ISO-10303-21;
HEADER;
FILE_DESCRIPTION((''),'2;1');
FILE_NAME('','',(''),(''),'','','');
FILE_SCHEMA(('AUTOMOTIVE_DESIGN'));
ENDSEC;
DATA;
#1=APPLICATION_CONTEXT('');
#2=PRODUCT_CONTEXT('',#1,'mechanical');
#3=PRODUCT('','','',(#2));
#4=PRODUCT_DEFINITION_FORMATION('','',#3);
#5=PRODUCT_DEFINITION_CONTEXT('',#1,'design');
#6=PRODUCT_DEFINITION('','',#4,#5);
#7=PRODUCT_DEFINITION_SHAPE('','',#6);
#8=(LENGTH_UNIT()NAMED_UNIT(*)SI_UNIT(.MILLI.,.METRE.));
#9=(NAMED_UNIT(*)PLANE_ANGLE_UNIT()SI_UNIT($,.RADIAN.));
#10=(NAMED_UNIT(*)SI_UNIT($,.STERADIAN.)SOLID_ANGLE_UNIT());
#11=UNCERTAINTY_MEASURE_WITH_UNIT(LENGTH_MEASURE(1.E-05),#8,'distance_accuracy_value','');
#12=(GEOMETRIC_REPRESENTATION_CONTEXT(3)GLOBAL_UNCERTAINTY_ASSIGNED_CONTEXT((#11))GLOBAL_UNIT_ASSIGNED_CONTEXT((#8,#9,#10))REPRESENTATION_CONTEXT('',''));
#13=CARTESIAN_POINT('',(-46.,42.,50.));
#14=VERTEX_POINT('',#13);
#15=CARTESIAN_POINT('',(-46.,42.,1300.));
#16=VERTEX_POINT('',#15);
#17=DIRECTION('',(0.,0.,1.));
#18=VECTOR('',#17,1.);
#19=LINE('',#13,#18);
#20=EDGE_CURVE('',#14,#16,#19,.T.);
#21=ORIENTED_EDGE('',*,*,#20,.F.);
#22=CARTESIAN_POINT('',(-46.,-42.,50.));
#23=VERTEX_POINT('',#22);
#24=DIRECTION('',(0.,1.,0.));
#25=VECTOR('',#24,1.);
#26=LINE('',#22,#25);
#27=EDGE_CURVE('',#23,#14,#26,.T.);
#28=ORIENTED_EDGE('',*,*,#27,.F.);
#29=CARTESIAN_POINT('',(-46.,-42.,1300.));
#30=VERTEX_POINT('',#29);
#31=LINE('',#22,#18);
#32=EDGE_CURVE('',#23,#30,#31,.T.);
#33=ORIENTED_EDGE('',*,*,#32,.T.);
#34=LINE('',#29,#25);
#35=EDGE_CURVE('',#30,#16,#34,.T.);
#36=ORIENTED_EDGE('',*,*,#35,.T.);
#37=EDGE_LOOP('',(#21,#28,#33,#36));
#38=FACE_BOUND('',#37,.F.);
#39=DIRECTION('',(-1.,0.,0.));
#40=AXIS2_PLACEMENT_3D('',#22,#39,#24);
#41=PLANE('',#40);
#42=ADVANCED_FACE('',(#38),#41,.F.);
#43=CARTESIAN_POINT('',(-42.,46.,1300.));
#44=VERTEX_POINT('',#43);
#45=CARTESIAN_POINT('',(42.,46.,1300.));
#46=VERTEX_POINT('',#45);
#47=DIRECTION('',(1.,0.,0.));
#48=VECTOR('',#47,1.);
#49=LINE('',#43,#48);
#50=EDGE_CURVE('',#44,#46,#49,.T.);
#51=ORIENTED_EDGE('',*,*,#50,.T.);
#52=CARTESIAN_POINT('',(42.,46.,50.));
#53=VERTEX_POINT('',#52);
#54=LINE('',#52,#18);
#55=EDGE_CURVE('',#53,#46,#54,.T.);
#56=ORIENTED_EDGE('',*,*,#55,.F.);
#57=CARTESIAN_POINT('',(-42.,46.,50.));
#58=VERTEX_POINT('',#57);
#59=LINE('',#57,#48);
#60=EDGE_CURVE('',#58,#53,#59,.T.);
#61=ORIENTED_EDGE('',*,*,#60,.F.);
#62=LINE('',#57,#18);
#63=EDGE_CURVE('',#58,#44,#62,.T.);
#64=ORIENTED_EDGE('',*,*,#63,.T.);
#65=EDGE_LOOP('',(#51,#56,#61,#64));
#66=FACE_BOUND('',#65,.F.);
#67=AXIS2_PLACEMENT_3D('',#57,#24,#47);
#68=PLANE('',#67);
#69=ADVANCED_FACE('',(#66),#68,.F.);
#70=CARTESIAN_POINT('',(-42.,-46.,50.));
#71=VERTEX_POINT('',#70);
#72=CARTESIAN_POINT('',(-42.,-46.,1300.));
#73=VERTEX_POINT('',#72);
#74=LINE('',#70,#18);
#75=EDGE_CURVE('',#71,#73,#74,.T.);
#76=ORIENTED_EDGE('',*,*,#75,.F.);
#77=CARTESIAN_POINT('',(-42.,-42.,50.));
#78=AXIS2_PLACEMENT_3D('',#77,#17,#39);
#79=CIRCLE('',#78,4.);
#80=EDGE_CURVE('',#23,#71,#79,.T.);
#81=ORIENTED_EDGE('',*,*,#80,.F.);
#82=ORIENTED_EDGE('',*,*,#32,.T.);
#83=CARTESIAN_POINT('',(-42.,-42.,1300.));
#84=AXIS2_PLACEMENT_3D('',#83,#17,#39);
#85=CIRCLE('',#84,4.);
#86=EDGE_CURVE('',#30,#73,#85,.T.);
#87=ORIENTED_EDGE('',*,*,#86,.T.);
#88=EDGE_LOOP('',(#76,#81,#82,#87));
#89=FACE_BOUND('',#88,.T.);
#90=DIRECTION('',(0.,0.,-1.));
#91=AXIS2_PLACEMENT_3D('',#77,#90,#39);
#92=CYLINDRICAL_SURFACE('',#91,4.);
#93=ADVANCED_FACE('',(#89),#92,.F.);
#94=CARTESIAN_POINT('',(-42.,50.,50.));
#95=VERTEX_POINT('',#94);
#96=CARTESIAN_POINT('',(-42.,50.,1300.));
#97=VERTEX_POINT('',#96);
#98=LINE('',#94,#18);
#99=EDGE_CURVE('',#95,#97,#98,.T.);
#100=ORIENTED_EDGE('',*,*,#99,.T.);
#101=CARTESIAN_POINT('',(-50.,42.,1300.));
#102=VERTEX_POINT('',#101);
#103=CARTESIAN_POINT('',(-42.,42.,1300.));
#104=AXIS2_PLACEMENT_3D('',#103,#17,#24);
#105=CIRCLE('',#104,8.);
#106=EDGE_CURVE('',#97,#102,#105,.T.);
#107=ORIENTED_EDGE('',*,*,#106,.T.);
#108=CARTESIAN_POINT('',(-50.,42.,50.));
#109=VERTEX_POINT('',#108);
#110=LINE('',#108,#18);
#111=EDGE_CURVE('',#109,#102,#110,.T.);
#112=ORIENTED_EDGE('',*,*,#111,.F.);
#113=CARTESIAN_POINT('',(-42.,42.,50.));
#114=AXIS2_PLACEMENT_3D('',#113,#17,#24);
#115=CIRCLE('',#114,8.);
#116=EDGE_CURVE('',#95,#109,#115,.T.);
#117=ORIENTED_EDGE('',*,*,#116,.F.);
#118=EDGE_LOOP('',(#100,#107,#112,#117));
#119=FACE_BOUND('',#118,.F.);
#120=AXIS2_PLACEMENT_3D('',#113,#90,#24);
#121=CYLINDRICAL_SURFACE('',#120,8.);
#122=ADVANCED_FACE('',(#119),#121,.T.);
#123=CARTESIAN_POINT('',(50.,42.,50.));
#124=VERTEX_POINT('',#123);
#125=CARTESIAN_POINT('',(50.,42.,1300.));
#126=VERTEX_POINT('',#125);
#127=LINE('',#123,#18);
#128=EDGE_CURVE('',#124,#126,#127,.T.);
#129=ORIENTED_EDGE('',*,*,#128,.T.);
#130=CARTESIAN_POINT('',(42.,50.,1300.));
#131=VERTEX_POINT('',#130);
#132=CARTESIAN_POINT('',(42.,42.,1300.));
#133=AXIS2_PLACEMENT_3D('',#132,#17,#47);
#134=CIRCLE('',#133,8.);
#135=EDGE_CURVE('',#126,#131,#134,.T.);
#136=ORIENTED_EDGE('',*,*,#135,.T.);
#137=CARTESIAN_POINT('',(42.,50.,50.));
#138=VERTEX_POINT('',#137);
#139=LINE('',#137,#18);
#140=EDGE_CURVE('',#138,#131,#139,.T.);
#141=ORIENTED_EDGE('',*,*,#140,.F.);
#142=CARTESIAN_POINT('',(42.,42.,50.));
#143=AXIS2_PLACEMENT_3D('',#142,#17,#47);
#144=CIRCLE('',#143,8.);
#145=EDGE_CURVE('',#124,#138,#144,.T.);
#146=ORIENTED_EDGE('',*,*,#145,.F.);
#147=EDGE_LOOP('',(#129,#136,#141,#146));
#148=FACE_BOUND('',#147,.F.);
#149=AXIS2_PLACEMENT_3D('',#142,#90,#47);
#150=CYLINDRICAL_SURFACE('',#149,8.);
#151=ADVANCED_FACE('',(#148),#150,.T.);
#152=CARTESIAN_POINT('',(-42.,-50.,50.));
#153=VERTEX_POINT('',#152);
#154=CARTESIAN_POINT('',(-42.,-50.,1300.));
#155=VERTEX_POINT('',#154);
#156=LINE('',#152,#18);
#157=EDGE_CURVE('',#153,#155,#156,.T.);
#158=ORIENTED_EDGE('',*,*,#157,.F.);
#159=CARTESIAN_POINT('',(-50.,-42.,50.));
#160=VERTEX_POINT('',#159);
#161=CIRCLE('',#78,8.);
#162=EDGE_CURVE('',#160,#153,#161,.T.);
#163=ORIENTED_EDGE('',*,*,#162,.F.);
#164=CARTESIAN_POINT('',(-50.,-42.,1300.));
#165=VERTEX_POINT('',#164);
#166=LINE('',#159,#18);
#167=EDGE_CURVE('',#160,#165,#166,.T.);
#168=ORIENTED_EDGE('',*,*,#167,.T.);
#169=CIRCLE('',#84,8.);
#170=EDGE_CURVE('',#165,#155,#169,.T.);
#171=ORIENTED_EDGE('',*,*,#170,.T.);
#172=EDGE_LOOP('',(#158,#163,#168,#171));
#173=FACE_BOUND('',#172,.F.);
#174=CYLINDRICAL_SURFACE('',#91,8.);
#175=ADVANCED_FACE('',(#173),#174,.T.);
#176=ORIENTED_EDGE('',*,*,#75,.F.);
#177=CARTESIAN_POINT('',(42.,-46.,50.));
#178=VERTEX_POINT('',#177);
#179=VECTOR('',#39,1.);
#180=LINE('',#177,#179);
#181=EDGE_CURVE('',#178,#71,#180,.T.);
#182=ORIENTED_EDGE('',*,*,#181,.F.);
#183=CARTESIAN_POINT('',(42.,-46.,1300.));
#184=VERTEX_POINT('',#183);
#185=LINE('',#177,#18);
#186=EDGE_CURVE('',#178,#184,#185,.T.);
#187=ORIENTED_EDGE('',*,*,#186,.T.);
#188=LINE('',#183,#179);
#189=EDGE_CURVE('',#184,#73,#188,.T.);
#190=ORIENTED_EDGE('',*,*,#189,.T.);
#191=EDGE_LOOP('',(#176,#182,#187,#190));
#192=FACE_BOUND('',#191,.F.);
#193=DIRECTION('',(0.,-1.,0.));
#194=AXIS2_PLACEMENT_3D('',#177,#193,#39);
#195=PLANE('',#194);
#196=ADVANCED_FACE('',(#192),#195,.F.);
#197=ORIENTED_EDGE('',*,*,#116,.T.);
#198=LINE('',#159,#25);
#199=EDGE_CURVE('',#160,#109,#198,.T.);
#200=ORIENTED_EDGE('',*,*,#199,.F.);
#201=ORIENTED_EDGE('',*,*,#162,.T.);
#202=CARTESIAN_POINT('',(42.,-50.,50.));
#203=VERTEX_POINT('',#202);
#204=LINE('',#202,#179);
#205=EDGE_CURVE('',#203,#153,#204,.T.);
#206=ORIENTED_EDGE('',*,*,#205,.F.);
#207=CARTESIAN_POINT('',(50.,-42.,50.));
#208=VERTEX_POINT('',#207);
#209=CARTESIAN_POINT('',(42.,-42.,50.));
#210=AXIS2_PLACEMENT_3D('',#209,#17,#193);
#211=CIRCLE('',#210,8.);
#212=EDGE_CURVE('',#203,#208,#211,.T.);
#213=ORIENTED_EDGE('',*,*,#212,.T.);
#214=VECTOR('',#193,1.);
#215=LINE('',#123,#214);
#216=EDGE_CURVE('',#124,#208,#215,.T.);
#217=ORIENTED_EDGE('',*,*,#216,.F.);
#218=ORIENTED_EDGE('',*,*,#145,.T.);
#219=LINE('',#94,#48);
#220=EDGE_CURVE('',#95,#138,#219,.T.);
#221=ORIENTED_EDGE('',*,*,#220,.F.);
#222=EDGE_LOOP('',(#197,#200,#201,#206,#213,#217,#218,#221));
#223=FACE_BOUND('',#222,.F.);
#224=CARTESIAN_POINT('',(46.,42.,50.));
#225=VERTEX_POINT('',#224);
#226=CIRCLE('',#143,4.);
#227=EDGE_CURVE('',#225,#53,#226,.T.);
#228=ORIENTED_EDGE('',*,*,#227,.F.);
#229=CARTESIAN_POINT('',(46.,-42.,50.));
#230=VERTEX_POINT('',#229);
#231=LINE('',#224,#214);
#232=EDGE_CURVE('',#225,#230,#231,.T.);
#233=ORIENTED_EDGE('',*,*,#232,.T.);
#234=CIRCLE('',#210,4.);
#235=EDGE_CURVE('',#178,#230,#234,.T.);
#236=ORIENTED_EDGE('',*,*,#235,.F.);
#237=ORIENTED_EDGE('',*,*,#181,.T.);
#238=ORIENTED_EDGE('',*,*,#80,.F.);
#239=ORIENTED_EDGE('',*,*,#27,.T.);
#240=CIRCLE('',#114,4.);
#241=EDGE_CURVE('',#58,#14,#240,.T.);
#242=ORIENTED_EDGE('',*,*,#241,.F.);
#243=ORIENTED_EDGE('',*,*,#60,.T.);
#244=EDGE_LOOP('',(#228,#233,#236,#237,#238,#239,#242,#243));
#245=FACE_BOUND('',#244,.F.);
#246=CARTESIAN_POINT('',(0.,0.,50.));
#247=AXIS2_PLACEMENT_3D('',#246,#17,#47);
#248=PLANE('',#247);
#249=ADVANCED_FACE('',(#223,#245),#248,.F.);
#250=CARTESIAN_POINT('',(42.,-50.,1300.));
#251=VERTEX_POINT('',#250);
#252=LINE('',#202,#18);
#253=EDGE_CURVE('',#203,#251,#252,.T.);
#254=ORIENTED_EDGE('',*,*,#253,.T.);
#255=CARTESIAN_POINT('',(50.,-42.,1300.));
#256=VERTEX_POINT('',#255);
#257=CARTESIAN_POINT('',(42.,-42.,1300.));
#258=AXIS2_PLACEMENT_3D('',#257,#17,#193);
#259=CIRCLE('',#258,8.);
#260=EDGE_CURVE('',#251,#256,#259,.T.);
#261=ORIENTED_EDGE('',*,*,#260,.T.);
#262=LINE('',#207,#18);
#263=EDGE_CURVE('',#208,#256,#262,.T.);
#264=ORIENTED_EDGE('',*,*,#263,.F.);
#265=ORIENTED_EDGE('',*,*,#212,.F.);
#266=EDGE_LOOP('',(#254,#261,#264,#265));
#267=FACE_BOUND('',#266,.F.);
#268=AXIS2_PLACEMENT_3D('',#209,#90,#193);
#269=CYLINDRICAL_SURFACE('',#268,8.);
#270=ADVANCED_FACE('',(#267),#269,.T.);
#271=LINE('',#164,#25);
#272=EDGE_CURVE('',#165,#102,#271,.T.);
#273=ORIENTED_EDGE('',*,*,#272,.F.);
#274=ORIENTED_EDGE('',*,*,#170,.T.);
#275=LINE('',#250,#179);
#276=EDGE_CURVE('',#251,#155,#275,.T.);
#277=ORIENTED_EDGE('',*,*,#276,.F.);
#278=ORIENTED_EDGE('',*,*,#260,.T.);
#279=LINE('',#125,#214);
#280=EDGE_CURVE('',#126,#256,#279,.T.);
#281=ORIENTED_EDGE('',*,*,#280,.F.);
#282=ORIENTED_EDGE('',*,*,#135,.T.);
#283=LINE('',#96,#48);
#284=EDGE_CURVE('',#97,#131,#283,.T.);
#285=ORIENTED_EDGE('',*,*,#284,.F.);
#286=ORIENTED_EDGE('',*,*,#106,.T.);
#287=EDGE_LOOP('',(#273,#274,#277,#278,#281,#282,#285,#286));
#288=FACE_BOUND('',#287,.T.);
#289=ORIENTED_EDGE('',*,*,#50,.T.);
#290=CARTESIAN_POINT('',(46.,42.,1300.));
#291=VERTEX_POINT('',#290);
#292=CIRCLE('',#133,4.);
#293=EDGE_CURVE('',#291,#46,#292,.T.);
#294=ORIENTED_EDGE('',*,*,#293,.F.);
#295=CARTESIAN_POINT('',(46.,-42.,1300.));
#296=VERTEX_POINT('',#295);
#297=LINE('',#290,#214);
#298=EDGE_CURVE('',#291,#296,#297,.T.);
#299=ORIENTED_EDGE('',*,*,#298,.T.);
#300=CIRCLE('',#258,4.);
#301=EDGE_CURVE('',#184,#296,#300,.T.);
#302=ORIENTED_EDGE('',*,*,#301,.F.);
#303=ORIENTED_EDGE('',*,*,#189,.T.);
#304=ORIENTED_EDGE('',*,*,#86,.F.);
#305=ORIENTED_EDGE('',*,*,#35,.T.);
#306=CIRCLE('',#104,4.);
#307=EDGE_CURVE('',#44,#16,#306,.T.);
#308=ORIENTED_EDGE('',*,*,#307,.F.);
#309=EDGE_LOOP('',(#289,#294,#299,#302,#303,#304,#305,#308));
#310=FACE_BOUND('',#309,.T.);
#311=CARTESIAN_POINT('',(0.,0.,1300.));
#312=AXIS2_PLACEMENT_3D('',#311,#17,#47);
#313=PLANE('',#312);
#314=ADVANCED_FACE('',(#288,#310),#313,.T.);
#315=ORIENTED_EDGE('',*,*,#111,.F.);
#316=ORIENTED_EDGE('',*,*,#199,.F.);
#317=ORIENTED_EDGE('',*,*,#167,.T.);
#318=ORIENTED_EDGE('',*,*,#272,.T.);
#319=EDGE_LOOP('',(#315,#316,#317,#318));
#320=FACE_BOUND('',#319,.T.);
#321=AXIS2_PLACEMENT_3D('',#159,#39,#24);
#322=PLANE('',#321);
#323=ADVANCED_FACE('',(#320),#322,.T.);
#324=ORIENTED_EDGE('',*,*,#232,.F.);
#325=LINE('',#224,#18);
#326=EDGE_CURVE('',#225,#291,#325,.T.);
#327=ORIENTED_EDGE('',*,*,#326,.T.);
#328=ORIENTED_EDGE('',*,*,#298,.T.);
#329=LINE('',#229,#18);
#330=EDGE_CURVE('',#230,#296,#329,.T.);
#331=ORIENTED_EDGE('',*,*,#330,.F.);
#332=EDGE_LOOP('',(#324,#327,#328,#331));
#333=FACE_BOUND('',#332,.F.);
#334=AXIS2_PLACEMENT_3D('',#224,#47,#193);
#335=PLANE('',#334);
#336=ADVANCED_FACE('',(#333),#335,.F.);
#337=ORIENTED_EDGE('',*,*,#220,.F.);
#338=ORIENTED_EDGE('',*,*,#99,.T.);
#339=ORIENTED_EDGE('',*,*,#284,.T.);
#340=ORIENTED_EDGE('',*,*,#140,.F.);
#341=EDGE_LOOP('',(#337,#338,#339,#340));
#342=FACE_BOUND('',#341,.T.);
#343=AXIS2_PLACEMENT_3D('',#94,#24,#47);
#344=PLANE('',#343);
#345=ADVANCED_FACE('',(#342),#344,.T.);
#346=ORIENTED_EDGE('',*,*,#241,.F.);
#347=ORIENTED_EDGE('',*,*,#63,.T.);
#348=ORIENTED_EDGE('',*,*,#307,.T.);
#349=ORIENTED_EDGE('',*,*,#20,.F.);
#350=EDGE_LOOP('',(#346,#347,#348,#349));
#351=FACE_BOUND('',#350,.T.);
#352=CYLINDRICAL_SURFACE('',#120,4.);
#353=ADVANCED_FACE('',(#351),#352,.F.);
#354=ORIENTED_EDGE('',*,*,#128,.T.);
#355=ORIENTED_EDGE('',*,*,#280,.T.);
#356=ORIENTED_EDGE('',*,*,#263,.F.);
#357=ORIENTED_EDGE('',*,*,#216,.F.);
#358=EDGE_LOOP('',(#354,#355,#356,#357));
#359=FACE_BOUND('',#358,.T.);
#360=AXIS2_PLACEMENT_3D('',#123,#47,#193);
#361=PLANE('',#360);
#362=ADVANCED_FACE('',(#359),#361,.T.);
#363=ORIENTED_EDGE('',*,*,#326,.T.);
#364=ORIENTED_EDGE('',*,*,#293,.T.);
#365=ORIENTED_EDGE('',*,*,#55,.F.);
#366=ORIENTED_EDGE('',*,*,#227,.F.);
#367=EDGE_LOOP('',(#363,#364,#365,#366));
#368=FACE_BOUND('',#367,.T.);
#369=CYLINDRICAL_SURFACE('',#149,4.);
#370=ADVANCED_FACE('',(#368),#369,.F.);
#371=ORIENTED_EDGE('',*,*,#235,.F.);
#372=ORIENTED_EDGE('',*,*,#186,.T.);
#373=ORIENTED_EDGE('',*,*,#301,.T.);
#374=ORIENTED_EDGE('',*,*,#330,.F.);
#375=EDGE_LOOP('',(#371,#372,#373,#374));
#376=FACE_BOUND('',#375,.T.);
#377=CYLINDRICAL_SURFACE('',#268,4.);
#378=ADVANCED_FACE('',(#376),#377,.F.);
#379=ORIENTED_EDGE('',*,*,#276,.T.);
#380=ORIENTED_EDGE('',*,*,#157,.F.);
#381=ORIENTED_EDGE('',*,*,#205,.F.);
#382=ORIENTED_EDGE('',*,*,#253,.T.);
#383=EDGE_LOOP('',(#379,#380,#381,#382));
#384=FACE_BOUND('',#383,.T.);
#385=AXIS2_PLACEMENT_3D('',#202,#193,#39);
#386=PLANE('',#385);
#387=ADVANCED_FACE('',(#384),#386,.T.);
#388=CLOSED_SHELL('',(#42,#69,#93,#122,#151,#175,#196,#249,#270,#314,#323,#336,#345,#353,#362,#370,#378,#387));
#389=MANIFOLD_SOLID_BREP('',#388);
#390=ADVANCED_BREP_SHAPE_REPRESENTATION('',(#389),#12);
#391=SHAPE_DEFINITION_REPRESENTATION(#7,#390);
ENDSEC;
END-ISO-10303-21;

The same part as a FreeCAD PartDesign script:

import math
import FreeCAD as App
import Part
import Sketcher
from FreeCAD import Vector
Q = App.Units.Quantity

doc = App.newDocument("Part")
body = doc.addObject("PartDesign::Body", "Body")

# Sketch on XY plane
sketch1 = body.newObject("Sketcher::SketchObject", "Sketch")
sketch1.AttachmentSupport = (doc.getObject("XY_Plane"), [""])
sketch1.MapMode = "FlatFace"
sketch1.AttachmentOffset = App.Placement(Vector(0, 0, 50), App.Rotation())
sketch1.addGeometry(Part.LineSegment(Vector(-50, 42, 0), Vector(-50, -42, 0)), False)
sketch1.addGeometry(Part.ArcOfCircle(Part.Circle(Vector(-42, -42, 0), Vector(0, 0, 1), 8), math.radians(180), math.radians(270)), False)
sketch1.addGeometry(Part.LineSegment(Vector(-42, -50, 0), Vector(42, -50, 0)), False)
sketch1.addGeometry(Part.ArcOfCircle(Part.Circle(Vector(42, -42, 0), Vector(0, 0, 1), 8), math.radians(-90), math.radians(0)), False)
sketch1.addGeometry(Part.LineSegment(Vector(50, -42, 0), Vector(50, 42, 0)), False)
sketch1.addGeometry(Part.ArcOfCircle(Part.Circle(Vector(42, 42, 0), Vector(0, 0, 1), 8), math.radians(0), math.radians(90)), False)
sketch1.addGeometry(Part.LineSegment(Vector(42, 50, 0), Vector(-42, 50, 0)), False)
sketch1.addGeometry(Part.ArcOfCircle(Part.Circle(Vector(-42, 42, 0), Vector(0, 0, 1), 8), math.radians(90), math.radians(180)), False)
sketch1.addGeometry(Part.ArcOfCircle(Part.Circle(Vector(-42, 42, 0), Vector(0, 0, 1), 4), math.radians(90), math.radians(180)), False)
sketch1.addGeometry(Part.LineSegment(Vector(-42, 46, 0), Vector(42, 46, 0)), False)
sketch1.addGeometry(Part.ArcOfCircle(Part.Circle(Vector(42, 42, 0), Vector(0, 0, 1), 4), math.radians(0), math.radians(90)), False)
sketch1.addGeometry(Part.LineSegment(Vector(46, 42, 0), Vector(46, -42, 0)), False)
sketch1.addGeometry(Part.ArcOfCircle(Part.Circle(Vector(42, -42, 0), Vector(0, 0, 1), 4), math.radians(-90), math.radians(0)), False)
sketch1.addGeometry(Part.LineSegment(Vector(42, -46, 0), Vector(-42, -46, 0)), False)
sketch1.addGeometry(Part.ArcOfCircle(Part.Circle(Vector(-42, -42, 0), Vector(0, 0, 1), 4), math.radians(180), math.radians(270)), False)
sketch1.addGeometry(Part.LineSegment(Vector(-46, -42, 0), Vector(-46, 42, 0)), False)
sketch1.addConstraint(Sketcher.Constraint("Tangent", 0, 2, 1, 1))
sketch1.addConstraint(Sketcher.Constraint("Tangent", 1, 2, 2, 1))
sketch1.addConstraint(Sketcher.Constraint("Tangent", 2, 2, 3, 1))
sketch1.addConstraint(Sketcher.Constraint("Tangent", 3, 2, 4, 1))
sketch1.addConstraint(Sketcher.Constraint("Tangent", 4, 2, 5, 1))
sketch1.addConstraint(Sketcher.Constraint("Tangent", 5, 2, 6, 1))
sketch1.addConstraint(Sketcher.Constraint("Tangent", 6, 2, 7, 1))
sketch1.addConstraint(Sketcher.Constraint("Tangent", 7, 2, 0, 1))
sketch1.addConstraint(Sketcher.Constraint("Tangent", 8, 1, 9, 1))
sketch1.addConstraint(Sketcher.Constraint("Tangent", 9, 2, 10, 2))
sketch1.addConstraint(Sketcher.Constraint("Tangent", 10, 1, 11, 1))
sketch1.addConstraint(Sketcher.Constraint("Tangent", 11, 2, 12, 2))
sketch1.addConstraint(Sketcher.Constraint("Tangent", 12, 1, 13, 1))
sketch1.addConstraint(Sketcher.Constraint("Tangent", 13, 2, 14, 2))
sketch1.addConstraint(Sketcher.Constraint("Tangent", 14, 1, 15, 1))
sketch1.addConstraint(Sketcher.Constraint("Tangent", 15, 2, 8, 2))
sketch1.addConstraint(Sketcher.Constraint("Vertical", 0))
sketch1.addConstraint(Sketcher.Constraint("Horizontal", 2))
sketch1.addConstraint(Sketcher.Constraint("Vertical", 4))
sketch1.addConstraint(Sketcher.Constraint("Horizontal", 6))
sketch1.addConstraint(Sketcher.Constraint("Horizontal", 9))
sketch1.addConstraint(Sketcher.Constraint("Vertical", 11))
sketch1.addConstraint(Sketcher.Constraint("Horizontal", 13))
sketch1.addConstraint(Sketcher.Constraint("Vertical", 15))
sketch1.addConstraint(Sketcher.Constraint("Coincident", 8, 3, 7, 3))
sketch1.addConstraint(Sketcher.Constraint("Coincident", 10, 3, 5, 3))
sketch1.addConstraint(Sketcher.Constraint("Coincident", 12, 3, 3, 3))
sketch1.addConstraint(Sketcher.Constraint("Equal", 1, 3))
sketch1.addConstraint(Sketcher.Constraint("Equal", 3, 5))
sketch1.addConstraint(Sketcher.Constraint("Equal", 5, 7))
sketch1.addConstraint(Sketcher.Constraint("Equal", 12, 14))
sketch1.addConstraint(Sketcher.Constraint("Symmetric", 1, 3, 5, 3, -1, 1))
sketch1.addConstraint(Sketcher.Constraint("Equal", 13, 0))
sketch1.addConstraint(Sketcher.Constraint("Radius", 1, Q("8 mm")))
sketch1.addConstraint(Sketcher.Constraint("Radius", 8, Q("4 mm")))
sketch1.addConstraint(Sketcher.Constraint("DistanceX", 0, 2, -1, 1, Q("50 mm")))
pad1 = body.newObject("PartDesign::Pad", "Pad")
pad1.Profile = sketch1
pad1.Length = 1250

doc.recompute()
